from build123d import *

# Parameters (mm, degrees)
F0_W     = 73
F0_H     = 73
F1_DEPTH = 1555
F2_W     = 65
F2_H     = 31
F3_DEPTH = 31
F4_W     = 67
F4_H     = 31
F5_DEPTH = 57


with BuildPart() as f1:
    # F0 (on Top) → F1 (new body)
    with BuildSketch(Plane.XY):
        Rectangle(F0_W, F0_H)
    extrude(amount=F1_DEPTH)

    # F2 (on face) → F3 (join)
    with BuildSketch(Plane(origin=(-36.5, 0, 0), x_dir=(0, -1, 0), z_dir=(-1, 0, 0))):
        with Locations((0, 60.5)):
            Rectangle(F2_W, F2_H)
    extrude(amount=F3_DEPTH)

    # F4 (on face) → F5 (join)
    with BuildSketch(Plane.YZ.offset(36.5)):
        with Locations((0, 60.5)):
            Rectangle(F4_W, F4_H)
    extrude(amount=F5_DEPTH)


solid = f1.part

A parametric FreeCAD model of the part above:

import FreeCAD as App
import Part
import Sketcher

V = App.Vector


def add_polygon(sketch, points):
    """Adds a closed chain of lines whose ends are joined by coincident constraints."""
    first, n = sketch.GeometryCount, len(points)
    for a, b in zip(points, points[1:] + points[:1]):
        sketch.addGeometry(Part.LineSegment(App.Vector(*a, 0), App.Vector(*b, 0)), False)
    for i in range(n):
        sketch.addConstraint(Sketcher.Constraint("Coincident", first + i, 2, first + (i + 1) % n, 1))

doc = App.newDocument("Part")
body = doc.addObject("PartDesign::Body", "Body")

sketch1 = body.newObject("Sketcher::SketchObject", "Sketch")
sketch1.AttachmentSupport = (doc.getObject("XY_Plane"), [""])
sketch1.MapMode = "FlatFace"
add_polygon(sketch1, [(-36, 36), (-36, -36), (36, -36), (36, 36)])
sketch1.addConstraint([
    Sketcher.Constraint("Vertical", 0),
    Sketcher.Constraint("Horizontal", 1),
    Sketcher.Constraint("Vertical", 2),
    Sketcher.Constraint("Horizontal", 3),
    Sketcher.Constraint("Symmetric", 0, 2, 2, 2, -1, 1),
    Sketcher.Constraint("Equal", 3, 0),
    Sketcher.Constraint("DistanceX", 1, 1, 1, 2, 73.0),
])
pad1 = body.newObject("PartDesign::Pad", "Pad")
pad1.Profile = sketch1
pad1.Length = 1555

sketch2 = body.newObject("Sketcher::SketchObject", "Sketch001")
sketch2.AttachmentSupport = (doc.getObject("YZ_Plane"), [""])
sketch2.MapMode = "FlatFace"
sketch2.AttachmentOffset = App.Placement(V(0, 0, -36.5), App.Rotation())
add_polygon(sketch2, [(32, 76), (32, 45), (-32, 45), (-32, 76)])
sketch2.addConstraint([
    Sketcher.Constraint("Vertical", 0),
    Sketcher.Constraint("Horizontal", 1),
    Sketcher.Constraint("Vertical", 2),
    Sketcher.Constraint("Horizontal", 3),
    Sketcher.Constraint("DistanceX", 1, 2, 1, 1, 65.0),
    Sketcher.Constraint("DistanceY", 0, 2, 0, 1, 31.0),
    Sketcher.Constraint("DistanceY", -1, 1, 0, 2, 45.0),
    Sketcher.Constraint("DistanceX", -1, 1, 0, 2, 32.5),
])
pad2 = body.newObject("PartDesign::Pad", "Pad001")
pad2.Profile = sketch2
pad2.Length = 31
pad2.Reversed = True

sketch3 = body.newObject("Sketcher::SketchObject", "Sketch002")
sketch3.AttachmentSupport = (doc.getObject("YZ_Plane"), [""])
sketch3.MapMode = "FlatFace"
sketch3.AttachmentOffset = App.Placement(V(0, 0, 36.5), App.Rotation())
add_polygon(sketch3, [(-34, 76), (-34, 45), (34, 45), (34, 76)])
sketch3.addConstraint([
    Sketcher.Constraint("Vertical", 0),
    Sketcher.Constraint("Horizontal", 1),
    Sketcher.Constraint("Vertical", 2),
    Sketcher.Constraint("Horizontal", 3),
    Sketcher.Constraint("DistanceX", 1, 1, 1, 2, 67.0),
    Sketcher.Constraint("DistanceY", 0, 2, 0, 1, 31.0),
    Sketcher.Constraint("DistanceY", -1, 1, 0, 2, 45.0),
    Sketcher.Constraint("DistanceX", 0, 2, -1, 1, 33.5),
])
pad3 = body.newObject("PartDesign::Pad", "Pad002")
pad3.Profile = sketch3
pad3.Length = 57

doc.recompute()
